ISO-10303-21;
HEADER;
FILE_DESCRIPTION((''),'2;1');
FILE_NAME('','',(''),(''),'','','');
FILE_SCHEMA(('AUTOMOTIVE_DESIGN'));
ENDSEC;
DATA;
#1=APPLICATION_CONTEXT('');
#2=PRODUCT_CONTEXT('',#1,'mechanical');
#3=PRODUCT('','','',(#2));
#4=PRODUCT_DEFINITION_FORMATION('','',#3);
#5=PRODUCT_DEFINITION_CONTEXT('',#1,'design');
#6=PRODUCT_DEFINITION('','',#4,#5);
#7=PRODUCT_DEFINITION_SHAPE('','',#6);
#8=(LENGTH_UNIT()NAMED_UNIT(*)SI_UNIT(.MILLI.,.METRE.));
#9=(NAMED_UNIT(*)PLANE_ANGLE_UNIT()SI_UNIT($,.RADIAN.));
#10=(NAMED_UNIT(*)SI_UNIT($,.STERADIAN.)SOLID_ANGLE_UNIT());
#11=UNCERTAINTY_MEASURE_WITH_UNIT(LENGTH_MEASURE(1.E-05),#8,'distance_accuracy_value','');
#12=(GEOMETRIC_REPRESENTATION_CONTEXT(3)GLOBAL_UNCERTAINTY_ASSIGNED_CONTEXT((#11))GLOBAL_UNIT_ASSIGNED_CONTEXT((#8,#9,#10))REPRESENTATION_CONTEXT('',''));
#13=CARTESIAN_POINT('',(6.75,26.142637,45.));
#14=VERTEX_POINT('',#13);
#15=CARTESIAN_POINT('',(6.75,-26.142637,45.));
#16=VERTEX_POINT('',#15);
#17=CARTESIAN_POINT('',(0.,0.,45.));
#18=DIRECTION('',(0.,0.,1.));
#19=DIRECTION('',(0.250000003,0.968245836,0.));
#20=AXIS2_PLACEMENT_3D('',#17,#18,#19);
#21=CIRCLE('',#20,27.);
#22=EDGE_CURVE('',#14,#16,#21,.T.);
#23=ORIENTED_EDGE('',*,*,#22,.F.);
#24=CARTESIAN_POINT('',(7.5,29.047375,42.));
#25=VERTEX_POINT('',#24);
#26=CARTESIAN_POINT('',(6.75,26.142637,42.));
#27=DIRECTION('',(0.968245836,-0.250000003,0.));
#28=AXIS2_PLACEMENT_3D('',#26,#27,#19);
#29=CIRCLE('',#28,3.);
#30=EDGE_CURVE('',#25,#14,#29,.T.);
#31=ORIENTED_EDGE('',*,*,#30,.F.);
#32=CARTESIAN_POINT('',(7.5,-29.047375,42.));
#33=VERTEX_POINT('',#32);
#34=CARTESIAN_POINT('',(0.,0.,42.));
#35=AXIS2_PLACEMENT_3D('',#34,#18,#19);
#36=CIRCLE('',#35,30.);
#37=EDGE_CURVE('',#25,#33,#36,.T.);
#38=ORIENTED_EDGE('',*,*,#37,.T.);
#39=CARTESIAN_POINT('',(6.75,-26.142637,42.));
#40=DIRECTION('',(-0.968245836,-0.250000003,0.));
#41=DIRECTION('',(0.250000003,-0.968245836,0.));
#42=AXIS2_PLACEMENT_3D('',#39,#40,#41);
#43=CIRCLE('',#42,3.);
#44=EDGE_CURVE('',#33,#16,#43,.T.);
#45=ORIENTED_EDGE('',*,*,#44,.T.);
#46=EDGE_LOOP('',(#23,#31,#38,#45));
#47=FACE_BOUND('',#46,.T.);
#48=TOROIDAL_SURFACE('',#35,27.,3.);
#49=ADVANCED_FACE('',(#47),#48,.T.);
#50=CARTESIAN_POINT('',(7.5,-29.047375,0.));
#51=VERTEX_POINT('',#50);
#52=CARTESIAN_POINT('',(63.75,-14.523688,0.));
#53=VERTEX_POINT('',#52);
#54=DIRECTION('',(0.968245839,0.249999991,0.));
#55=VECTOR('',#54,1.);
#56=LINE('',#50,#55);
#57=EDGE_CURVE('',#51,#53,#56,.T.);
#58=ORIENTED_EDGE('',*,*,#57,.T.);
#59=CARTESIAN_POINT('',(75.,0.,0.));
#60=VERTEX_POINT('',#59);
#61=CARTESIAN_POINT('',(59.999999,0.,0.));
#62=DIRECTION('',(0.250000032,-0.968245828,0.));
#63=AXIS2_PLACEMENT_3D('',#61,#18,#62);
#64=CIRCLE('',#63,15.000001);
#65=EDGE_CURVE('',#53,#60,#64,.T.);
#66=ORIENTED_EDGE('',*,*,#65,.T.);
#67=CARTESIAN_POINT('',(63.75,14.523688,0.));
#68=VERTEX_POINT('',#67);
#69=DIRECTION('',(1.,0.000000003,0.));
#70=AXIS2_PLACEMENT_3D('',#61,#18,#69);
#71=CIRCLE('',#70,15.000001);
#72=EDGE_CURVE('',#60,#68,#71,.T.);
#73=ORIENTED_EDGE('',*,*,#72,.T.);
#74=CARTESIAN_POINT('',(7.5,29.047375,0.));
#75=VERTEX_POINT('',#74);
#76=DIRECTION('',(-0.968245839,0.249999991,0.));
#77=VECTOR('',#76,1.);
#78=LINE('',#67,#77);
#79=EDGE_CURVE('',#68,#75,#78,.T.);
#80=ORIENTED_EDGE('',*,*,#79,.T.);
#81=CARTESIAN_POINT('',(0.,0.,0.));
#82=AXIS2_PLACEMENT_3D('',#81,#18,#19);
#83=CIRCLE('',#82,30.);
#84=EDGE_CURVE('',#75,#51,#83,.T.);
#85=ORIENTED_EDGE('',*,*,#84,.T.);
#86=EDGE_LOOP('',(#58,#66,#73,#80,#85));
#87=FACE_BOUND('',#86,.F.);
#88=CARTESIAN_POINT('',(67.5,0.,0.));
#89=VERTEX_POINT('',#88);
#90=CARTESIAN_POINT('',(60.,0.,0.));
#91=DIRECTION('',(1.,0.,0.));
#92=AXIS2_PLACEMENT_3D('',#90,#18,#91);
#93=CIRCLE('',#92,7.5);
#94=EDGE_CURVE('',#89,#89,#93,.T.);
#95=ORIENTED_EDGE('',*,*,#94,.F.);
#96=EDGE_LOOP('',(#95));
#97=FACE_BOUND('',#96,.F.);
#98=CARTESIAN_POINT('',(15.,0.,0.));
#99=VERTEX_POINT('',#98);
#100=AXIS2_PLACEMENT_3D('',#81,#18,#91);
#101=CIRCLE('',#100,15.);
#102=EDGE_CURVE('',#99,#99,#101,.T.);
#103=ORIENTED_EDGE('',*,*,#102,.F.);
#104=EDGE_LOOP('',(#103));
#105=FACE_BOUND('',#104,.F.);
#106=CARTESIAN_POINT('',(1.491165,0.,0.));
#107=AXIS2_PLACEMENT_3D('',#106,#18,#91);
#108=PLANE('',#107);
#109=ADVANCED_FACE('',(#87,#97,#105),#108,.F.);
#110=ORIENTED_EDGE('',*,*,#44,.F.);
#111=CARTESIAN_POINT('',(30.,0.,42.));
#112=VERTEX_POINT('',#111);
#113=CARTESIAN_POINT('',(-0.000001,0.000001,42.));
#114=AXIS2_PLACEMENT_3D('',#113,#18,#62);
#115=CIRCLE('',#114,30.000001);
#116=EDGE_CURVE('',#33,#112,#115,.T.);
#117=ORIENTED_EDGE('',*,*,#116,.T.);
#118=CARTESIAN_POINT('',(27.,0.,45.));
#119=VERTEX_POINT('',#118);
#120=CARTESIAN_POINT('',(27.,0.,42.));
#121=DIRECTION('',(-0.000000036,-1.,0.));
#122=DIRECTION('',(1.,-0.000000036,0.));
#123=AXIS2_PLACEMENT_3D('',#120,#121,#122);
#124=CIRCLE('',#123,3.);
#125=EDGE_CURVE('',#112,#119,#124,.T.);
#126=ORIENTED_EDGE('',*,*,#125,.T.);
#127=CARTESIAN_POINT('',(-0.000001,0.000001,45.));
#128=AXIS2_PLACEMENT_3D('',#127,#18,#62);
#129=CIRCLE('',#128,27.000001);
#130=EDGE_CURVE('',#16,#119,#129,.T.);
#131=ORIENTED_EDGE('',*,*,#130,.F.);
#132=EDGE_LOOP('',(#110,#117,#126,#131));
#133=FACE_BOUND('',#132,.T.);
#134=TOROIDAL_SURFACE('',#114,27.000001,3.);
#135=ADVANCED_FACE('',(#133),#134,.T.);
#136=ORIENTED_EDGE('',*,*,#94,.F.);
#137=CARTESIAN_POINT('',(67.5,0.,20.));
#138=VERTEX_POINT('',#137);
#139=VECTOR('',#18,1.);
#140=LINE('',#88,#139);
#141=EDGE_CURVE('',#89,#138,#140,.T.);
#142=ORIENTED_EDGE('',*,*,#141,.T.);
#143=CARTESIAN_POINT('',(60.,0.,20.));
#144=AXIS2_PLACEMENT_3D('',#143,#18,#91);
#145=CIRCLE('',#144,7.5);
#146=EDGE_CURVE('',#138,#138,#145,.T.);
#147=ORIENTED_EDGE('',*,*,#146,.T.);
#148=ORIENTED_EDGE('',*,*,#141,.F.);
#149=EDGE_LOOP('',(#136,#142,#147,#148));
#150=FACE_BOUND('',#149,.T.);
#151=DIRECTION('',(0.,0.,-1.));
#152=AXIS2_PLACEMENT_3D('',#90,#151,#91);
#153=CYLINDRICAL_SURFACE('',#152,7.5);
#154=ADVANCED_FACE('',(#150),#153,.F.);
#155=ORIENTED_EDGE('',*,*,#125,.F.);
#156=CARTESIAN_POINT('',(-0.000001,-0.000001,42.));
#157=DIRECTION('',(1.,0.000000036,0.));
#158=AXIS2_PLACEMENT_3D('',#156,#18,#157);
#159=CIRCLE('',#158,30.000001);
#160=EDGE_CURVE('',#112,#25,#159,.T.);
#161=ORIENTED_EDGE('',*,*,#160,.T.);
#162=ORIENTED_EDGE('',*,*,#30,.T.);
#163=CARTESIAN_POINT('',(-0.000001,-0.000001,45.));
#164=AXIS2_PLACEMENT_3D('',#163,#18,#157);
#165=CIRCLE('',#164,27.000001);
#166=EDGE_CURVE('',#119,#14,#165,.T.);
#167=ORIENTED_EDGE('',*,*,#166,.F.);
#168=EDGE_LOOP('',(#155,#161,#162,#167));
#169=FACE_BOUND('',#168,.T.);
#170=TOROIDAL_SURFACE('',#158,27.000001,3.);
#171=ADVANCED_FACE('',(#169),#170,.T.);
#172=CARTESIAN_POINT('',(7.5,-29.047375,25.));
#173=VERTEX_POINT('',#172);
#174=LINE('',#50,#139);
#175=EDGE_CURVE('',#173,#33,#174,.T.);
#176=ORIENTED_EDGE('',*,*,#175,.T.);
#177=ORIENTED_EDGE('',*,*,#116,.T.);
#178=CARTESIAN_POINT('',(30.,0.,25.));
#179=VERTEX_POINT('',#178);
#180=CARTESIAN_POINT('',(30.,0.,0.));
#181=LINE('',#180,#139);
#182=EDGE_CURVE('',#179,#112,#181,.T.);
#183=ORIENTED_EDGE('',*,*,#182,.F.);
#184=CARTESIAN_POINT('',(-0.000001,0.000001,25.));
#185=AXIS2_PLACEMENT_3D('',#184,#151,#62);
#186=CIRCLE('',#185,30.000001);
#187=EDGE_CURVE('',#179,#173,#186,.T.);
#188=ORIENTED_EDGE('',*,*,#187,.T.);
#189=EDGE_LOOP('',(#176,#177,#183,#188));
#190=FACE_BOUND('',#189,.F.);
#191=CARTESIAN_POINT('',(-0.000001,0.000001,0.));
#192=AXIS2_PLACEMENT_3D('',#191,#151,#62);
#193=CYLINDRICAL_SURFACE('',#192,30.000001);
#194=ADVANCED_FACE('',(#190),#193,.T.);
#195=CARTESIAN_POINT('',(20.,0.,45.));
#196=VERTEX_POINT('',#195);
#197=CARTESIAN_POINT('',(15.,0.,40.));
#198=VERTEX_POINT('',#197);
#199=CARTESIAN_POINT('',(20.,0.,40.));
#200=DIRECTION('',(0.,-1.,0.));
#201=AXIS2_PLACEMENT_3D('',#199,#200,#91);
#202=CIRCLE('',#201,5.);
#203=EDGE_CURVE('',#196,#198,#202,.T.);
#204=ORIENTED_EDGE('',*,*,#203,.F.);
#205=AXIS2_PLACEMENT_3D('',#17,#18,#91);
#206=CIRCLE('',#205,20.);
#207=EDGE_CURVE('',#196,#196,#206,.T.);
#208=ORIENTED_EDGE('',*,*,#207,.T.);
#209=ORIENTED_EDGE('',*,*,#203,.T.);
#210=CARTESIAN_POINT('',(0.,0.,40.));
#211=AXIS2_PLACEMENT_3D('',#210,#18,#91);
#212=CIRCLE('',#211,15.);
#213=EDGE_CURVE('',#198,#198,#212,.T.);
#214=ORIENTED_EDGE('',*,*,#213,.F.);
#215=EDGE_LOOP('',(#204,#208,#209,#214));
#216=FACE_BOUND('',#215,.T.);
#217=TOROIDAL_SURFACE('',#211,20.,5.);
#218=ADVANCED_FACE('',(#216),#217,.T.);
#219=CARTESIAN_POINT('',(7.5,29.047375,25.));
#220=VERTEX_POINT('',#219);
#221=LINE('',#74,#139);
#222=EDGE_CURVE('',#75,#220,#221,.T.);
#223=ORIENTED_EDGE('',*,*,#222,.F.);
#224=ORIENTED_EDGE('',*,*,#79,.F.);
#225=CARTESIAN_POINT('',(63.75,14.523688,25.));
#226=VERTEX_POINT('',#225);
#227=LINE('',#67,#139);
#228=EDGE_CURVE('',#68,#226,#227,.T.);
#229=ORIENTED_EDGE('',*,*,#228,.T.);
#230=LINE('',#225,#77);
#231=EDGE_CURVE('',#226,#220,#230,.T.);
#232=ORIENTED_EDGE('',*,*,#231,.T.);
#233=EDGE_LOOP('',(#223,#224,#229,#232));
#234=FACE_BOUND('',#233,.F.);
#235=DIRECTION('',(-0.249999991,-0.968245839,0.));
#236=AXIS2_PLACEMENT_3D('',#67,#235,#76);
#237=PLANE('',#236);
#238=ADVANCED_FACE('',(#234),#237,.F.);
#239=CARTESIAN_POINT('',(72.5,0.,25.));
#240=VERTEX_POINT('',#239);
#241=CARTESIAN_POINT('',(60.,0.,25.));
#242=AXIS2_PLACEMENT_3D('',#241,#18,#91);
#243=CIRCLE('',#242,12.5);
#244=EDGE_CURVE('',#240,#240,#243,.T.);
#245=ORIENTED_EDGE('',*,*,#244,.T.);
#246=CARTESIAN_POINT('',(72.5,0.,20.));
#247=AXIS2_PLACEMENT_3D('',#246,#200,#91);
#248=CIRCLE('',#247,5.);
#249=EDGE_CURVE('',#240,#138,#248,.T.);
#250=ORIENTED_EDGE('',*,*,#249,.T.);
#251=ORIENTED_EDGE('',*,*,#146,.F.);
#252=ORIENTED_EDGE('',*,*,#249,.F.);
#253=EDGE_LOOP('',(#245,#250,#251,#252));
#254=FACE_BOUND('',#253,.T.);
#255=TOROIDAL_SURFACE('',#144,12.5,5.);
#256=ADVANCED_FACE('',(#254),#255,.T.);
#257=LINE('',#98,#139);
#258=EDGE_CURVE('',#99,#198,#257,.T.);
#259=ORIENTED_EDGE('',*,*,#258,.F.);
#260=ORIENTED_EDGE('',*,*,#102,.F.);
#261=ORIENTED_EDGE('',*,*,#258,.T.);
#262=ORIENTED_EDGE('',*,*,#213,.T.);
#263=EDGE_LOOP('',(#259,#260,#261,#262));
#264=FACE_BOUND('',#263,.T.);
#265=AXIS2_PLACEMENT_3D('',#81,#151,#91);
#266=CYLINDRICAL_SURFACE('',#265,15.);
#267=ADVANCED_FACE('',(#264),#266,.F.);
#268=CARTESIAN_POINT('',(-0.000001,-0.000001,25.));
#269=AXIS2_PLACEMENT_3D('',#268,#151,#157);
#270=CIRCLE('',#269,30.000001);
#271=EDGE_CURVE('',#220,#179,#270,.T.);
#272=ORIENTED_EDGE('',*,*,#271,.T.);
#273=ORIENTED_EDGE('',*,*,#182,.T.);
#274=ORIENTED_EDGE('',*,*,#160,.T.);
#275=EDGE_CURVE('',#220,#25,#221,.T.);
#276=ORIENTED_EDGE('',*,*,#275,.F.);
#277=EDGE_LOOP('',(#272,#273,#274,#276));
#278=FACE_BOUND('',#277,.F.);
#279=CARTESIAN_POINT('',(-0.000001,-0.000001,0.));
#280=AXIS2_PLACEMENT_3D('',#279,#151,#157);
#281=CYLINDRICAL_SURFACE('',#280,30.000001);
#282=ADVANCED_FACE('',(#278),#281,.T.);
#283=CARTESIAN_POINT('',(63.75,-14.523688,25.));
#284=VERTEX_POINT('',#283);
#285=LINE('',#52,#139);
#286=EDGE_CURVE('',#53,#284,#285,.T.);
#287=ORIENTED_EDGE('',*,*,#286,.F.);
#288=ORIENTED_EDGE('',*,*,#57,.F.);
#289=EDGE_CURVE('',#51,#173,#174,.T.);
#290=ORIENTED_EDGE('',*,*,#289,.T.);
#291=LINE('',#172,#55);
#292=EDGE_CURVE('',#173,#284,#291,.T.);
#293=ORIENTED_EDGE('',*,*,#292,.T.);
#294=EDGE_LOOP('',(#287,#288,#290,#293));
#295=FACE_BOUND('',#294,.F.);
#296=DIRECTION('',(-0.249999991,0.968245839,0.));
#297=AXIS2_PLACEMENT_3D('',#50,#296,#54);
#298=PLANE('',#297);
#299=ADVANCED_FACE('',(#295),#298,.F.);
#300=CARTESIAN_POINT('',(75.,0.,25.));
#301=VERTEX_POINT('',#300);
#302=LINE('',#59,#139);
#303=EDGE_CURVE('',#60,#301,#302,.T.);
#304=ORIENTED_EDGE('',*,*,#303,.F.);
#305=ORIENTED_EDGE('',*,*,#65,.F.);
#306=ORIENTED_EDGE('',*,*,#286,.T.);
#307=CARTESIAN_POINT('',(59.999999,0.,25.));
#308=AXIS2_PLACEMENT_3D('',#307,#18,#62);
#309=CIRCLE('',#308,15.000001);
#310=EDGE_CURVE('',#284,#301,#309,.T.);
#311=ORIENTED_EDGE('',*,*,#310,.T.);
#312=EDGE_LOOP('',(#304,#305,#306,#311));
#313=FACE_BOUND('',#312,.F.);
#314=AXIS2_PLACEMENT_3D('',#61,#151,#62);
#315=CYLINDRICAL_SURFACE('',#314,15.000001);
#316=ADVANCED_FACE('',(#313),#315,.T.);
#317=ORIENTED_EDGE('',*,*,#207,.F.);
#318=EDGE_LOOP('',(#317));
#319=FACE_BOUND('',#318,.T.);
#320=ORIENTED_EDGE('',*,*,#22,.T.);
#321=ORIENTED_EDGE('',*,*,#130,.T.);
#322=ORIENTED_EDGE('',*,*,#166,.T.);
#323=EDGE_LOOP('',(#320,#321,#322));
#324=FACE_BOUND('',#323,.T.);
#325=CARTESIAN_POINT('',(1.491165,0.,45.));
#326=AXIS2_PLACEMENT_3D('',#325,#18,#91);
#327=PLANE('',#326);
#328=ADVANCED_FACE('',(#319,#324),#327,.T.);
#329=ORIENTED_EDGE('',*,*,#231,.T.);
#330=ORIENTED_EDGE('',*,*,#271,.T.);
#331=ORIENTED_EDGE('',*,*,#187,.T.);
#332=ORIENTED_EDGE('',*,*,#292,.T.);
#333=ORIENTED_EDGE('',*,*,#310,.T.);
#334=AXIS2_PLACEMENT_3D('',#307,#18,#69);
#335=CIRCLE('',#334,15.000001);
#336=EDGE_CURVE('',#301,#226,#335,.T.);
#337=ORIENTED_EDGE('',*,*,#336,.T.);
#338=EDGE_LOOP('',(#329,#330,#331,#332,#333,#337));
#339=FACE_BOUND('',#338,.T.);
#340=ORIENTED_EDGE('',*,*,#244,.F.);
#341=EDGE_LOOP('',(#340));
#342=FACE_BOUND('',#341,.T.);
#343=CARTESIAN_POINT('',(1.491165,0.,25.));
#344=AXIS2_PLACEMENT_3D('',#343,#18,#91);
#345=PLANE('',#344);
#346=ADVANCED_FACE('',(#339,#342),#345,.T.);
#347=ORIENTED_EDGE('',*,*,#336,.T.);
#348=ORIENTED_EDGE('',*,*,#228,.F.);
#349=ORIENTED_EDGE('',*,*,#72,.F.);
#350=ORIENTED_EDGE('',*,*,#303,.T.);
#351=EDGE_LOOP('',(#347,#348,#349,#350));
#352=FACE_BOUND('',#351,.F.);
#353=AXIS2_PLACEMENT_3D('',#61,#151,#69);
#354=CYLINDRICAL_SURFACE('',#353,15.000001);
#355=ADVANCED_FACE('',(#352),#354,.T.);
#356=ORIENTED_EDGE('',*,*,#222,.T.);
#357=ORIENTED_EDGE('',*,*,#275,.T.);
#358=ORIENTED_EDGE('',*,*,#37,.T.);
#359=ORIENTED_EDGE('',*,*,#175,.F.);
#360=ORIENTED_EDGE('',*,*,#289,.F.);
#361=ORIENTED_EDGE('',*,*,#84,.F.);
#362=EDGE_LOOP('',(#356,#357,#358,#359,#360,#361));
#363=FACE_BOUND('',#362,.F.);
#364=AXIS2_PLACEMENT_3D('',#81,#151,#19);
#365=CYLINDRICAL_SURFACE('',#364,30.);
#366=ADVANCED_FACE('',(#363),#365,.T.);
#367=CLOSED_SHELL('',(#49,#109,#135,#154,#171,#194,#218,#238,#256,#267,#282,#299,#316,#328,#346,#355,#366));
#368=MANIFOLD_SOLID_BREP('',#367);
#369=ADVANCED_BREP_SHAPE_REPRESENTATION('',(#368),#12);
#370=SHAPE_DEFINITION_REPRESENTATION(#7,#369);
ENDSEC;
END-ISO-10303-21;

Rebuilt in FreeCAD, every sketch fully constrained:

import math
import FreeCAD as App
import Part
import Sketcher

V = App.Vector
Q = App.Units.Quantity


def edges_at(feature, points):
    """Names of the edges that pass closest to the given points."""
    edges = feature.Shape.Edges
    near = lambda p: min(range(len(edges)), key=lambda i: edges[i].distToShape(Part.Vertex(*p))[0])
    return sorted({f"Edge{near(p) + 1}" for p in points})

doc = App.newDocument("Part")
body = doc.addObject("PartDesign::Body", "Body")

# Sketch on XY plane
sketch1 = body.newObject("Sketcher::SketchObject", "Sketch")
sketch1.AttachmentSupport = (doc.getObject("XY_Plane"), [""])
sketch1.MapMode = "FlatFace"
sketch1.addGeometry([
    Part.ArcOfCircle(Part.Circle(V(0, 0, 0), V(0, 0, 1), 30), math.radians(75.522488), math.radians(284.477512)),  # 0
    Part.LineSegment(V(7.5, -29.047375, 0), V(63.75, -14.523688, 0)),  # 1
    Part.ArcOfCircle(Part.Circle(V(59.999999, 0, 0), V(0, 0, 1), 15.000001), math.radians(-75.522486), math.radians(0)),  # 2
    Part.ArcOfCircle(Part.Circle(V(59.999999, 0, 0), V(0, 0, 1), 15.000001), math.radians(0), math.radians(75.522486)),  # 3
    Part.LineSegment(V(63.75, 14.523688, 0), V(7.5, 29.047375, 0)),  # 4
    Part.Circle(V(0, 0, 0), V(0, 0, 1), 15),  # 5
    Part.Circle(V(60, 0, 0), V(0, 0, 1), 7.5),  # 6
], False)
sketch1.addConstraint([
    Sketcher.Constraint("Tangent", 0, 2, 1, 1),
    Sketcher.Constraint("Tangent", 1, 2, 2, 1),
    Sketcher.Constraint("Tangent", 2, 2, 3, 1),
    Sketcher.Constraint("Tangent", 3, 2, 4, 1),
    Sketcher.Constraint("Tangent", 4, 2, 0, 1),
    Sketcher.Constraint("Coincident", 0, 3, -1, 1),
    Sketcher.Constraint("Coincident", 5, 3, -1, 1),
    Sketcher.Constraint("Coincident", 6, 3, 2, 3),
    Sketcher.Constraint("Equal", 2, 3),
    Sketcher.Constraint("Equal", 3, 5),
    Sketcher.Constraint("PointOnObject", 2, 3, -1),
    Sketcher.Constraint("PointOnObject", 2, 2, -1),
    Sketcher.Constraint("Diameter", 5, Q("30 mm")),
    Sketcher.Constraint("Diameter", 6, Q("15 mm")),
    Sketcher.Constraint("Radius", 0, Q("30 mm")),
    Sketcher.Constraint("DistanceX", -1, 1, 2, 3, Q("59.999999 mm")),
])
pad1 = body.newObject("PartDesign::Pad", "Pad")
pad1.Profile = sketch1
pad1.Length = 25

# Sketch on XY plane
sketch2 = body.newObject("Sketcher::SketchObject", "Sketch001")
sketch2.AttachmentSupport = (doc.getObject("XY_Plane"), [""])
sketch2.MapMode = "FlatFace"
sketch2.addGeometry([
    Part.ArcOfCircle(Part.Circle(V(-0.000001, 0.000001, 0), V(0, 0, 1), 30.000001), math.radians(-75.522486), math.radians(-0.000002)),
    Part.ArcOfCircle(Part.Circle(V(-0.000001, -0.000001, 0), V(0, 0, 1), 30.000001), math.radians(0.000002), math.radians(75.522486)),
    Part.ArcOfCircle(Part.Circle(V(0, 0, 0), V(0, 0, 1), 30), math.radians(75.522488), math.radians(284.477512)),
    Part.Circle(V(0, 0, 0), V(0, 0, 1), 15),
], False)
sketch2.addConstraint([
    Sketcher.Constraint("Tangent", 0, 2, 1, 1),
    Sketcher.Constraint("Tangent", 1, 2, 2, 1),
    Sketcher.Constraint("Tangent", 2, 2, 0, 1),
    Sketcher.Constraint("Coincident", 0, 3, -1, 1),
    Sketcher.Constraint("Coincident", 3, 3, -1, 1),
    Sketcher.Constraint("PointOnObject", 0, 2, -1),
    Sketcher.Constraint("Vertical", 1, 2, 2, 2),
    Sketcher.Constraint("Diameter", 3, Q("30 mm")),
    Sketcher.Constraint("Radius", 0, Q("30.000001 mm")),
    Sketcher.Constraint("DistanceX", -1, 1, 1, 2, Q("7.5 mm")),
])
pad2 = body.newObject("PartDesign::Pad", "Pad001")
pad2.Profile = sketch2
pad2.Length = 45
doc.recompute()

fillet = body.newObject("PartDesign::Fillet", "Fillet")
fillet.Base = (pad2, edges_at(pad2, [(-30, 0, 45)]))
fillet.Radius = 3
doc.recompute()

fillet2 = body.newObject("PartDesign::Fillet", "Fillet001")
fillet2.Base = (fillet, edges_at(fillet, [(-15, 0, 45), (52.5, 0, 25)]))
fillet2.Radius = 5

doc.recompute()
